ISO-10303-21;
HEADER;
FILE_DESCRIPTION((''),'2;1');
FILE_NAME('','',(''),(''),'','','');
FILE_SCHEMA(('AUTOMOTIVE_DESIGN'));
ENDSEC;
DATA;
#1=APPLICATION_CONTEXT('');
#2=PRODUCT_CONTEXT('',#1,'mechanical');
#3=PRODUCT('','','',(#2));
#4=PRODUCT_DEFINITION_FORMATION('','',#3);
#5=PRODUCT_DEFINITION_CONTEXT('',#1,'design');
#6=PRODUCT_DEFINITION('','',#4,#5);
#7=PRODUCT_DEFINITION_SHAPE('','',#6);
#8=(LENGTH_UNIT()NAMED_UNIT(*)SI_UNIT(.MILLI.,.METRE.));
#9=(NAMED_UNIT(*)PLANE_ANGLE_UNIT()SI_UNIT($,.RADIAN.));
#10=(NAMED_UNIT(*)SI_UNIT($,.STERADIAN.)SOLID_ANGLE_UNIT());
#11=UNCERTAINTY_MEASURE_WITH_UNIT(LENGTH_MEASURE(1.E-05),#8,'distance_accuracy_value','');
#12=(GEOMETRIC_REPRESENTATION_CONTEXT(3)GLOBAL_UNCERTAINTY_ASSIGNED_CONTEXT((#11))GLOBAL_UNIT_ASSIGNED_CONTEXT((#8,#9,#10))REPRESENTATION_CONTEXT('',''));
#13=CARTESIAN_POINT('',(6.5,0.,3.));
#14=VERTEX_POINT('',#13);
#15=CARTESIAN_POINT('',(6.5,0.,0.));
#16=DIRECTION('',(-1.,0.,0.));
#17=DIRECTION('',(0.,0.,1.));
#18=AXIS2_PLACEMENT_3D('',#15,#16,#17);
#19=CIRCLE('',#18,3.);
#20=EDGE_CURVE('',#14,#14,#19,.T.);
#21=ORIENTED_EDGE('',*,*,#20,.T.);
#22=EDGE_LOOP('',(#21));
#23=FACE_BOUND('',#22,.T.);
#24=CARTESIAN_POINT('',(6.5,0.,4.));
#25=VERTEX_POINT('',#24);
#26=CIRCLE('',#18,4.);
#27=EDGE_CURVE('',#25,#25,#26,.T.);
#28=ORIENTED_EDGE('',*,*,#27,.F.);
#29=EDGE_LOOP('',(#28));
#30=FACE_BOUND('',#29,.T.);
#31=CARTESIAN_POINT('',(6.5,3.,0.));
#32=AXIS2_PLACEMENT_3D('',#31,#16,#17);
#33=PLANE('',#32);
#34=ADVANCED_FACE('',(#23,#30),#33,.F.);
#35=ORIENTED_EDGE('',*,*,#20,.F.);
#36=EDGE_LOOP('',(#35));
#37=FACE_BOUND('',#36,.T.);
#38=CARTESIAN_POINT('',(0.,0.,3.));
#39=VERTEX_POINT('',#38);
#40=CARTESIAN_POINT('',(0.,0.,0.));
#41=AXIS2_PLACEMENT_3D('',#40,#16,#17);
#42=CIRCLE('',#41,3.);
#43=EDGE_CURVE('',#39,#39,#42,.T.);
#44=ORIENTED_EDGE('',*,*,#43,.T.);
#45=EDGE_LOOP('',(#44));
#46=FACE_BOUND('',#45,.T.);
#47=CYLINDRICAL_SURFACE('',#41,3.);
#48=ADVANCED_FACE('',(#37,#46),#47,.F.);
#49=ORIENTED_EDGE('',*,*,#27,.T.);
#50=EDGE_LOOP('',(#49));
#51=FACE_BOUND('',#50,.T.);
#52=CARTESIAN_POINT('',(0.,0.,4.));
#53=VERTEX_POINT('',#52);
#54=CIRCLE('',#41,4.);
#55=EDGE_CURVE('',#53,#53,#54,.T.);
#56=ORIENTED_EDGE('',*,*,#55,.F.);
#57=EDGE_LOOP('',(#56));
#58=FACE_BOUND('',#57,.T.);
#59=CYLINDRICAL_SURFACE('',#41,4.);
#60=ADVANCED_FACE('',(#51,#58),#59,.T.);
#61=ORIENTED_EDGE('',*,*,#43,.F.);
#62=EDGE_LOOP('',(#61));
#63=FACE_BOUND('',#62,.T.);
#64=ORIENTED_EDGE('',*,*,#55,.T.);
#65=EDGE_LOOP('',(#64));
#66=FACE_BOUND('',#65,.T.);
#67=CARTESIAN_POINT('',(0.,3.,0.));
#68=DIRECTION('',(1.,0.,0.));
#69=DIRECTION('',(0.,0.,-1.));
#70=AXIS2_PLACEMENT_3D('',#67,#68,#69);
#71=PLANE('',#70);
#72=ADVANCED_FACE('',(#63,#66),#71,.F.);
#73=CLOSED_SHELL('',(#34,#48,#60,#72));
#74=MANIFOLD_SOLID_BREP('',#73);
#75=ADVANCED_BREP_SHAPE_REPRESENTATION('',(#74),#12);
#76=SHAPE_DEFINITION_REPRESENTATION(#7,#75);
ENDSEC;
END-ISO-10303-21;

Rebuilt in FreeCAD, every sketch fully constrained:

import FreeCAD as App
import Part
import Sketcher
from FreeCAD import Vector


def add_polygon(sketch, points):
    """Adds a closed chain of lines whose ends are joined by coincident constraints."""
    first, n = sketch.GeometryCount, len(points)
    for a, b in zip(points, points[1:] + points[:1]):
        sketch.addGeometry(Part.LineSegment(App.Vector(*a, 0), App.Vector(*b, 0)), False)
    for i in range(n):
        sketch.addConstraint(Sketcher.Constraint("Coincident", first + i, 2, first + (i + 1) % n, 1))

doc = App.newDocument("Part")
body = doc.addObject("PartDesign::Body", "Body")

# Sketch on XY plane
sketch1 = doc.addObject("Sketcher::SketchObject", "Sketch")
body.addObject(sketch1)
sketch1.AttachmentSupport = (doc.XY_Plane, [""])
sketch1.MapMode = "FlatFace"
add_polygon(sketch1, [(0, 4), (0, 3), (6.5, 3), (6.5, 4)])  # lines 0-3
sketch1.addConstraint([
    Sketcher.Constraint("Vertical", 0),
    Sketcher.Constraint("Horizontal", 1),
    Sketcher.Constraint("Vertical", 2),
    Sketcher.Constraint("Horizontal", 3),
    Sketcher.Constraint("PointOnObject", 0, 2, -2),
    Sketcher.Constraint("DistanceY", 0, 2, 0, 1, 1.0),
    Sketcher.Constraint("DistanceX", 1, 1, 1, 2, 6.5),
    Sketcher.Constraint("DistanceY", -1, 1, 0, 2, 3.0),
])
revolution = doc.addObject("PartDesign::Revolution", "Revolution")
body.addObject(revolution)
revolution.Profile = sketch1
revolution.ReferenceAxis = (sketch1, ["H_Axis"])
revolution.Angle = 360

doc.recompute()
